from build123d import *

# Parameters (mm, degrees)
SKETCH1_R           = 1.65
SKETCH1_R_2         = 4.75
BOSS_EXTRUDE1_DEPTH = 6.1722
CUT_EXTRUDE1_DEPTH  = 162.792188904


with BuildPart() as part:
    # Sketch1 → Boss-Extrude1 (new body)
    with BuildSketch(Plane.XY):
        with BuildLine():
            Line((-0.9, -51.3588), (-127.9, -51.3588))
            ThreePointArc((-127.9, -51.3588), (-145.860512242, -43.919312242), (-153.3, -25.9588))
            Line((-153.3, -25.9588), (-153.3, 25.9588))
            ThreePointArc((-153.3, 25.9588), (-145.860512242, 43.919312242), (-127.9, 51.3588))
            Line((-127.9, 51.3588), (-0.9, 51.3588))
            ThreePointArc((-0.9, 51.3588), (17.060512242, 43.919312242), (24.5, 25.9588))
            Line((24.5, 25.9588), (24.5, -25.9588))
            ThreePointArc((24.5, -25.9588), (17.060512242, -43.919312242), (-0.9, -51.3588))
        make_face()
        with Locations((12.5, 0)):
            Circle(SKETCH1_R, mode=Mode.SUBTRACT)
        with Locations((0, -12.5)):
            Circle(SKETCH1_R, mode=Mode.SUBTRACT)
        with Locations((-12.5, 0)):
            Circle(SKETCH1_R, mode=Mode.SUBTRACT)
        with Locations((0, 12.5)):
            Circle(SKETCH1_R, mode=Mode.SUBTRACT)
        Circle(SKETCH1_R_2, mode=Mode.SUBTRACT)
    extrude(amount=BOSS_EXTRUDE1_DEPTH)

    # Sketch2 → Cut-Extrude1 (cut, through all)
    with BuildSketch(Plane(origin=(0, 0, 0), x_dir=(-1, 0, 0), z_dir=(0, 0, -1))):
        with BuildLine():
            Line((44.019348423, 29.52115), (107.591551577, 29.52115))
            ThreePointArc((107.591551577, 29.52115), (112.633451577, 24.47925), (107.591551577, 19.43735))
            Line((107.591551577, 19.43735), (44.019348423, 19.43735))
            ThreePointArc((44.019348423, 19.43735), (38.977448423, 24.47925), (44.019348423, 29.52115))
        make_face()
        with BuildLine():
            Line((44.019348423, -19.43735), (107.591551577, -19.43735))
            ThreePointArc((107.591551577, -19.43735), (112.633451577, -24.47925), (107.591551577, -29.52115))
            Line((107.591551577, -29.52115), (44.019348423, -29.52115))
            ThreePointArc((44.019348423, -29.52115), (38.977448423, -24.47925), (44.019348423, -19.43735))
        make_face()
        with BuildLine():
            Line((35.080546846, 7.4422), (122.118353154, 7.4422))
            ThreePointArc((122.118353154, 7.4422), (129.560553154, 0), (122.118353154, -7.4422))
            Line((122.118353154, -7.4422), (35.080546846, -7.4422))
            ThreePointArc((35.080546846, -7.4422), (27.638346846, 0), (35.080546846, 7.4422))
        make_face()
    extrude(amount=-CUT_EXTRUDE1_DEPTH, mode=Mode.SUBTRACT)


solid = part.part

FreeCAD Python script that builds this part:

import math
import FreeCAD as App
import Part
import Sketcher
from FreeCAD import Vector
Q = App.Units.Quantity

doc = App.newDocument("Part")
body = doc.addObject("PartDesign::Body", "Body")

sketch1 = body.newObject("Sketcher::SketchObject", "Sketch")
sketch1.AttachmentSupport = (doc.getObject("XY_Plane"), [""])
sketch1.MapMode = "FlatFace"
sketch1.addGeometry(Part.LineSegment(Vector(-127.9, -51.4, 0), Vector(-0.9, -51.4, 0)), False)
sketch1.addGeometry(Part.ArcOfCircle(Part.Circle(Vector(-0.9, -26, 0), Vector(0, 0, 1), 25.4), math.radians(-90), math.radians(0)), False)
sketch1.addGeometry(Part.LineSegment(Vector(24.5, -26, 0), Vector(24.5, 26, 0)), False)
sketch1.addGeometry(Part.ArcOfCircle(Part.Circle(Vector(-0.9, 26, 0), Vector(0, 0, 1), 25.4), math.radians(0), math.radians(90)), False)
sketch1.addGeometry(Part.LineSegment(Vector(-0.9, 51.4, 0), Vector(-127.9, 51.4, 0)), False)
sketch1.addGeometry(Part.ArcOfCircle(Part.Circle(Vector(-127.9, 26, 0), Vector(0, 0, 1), 25.4), math.radians(90), math.radians(180)), False)
sketch1.addGeometry(Part.LineSegment(Vector(-153.3, 26, 0), Vector(-153.3, -26, 0)), False)
sketch1.addGeometry(Part.ArcOfCircle(Part.Circle(Vector(-127.9, -26, 0), Vector(0, 0, 1), 25.4), math.radians(180), math.radians(270)), False)
sketch1.addGeometry(Part.Circle(Vector(0, -12.5, 0), Vector(0, 0, 1), 1.6), False)
sketch1.addGeometry(Part.Circle(Vector(12.5, 0, 0), Vector(0, 0, 1), 1.6), False)
sketch1.addGeometry(Part.Circle(Vector(0, 0, 0), Vector(0, 0, 1), 4.8), False)
sketch1.addGeometry(Part.Circle(Vector(-12.5, 0, 0), Vector(0, 0, 1), 1.6), False)
sketch1.addGeometry(Part.Circle(Vector(0, 12.5, 0), Vector(0, 0, 1), 1.6), False)
sketch1.addConstraint(Sketcher.Constraint("Tangent", 0, 2, 1, 1))
sketch1.addConstraint(Sketcher.Constraint("Tangent", 1, 2, 2, 1))
sketch1.addConstraint(Sketcher.Constraint("Tangent", 2, 2, 3, 1))
sketch1.addConstraint(Sketcher.Constraint("Tangent", 3, 2, 4, 1))
sketch1.addConstraint(Sketcher.Constraint("Tangent", 4, 2, 5, 1))
sketch1.addConstraint(Sketcher.Constraint("Tangent", 5, 2, 6, 1))
sketch1.addConstraint(Sketcher.Constraint("Tangent", 6, 2, 7, 1))
sketch1.addConstraint(Sketcher.Constraint("Tangent", 7, 2, 0, 1))
sketch1.addConstraint(Sketcher.Constraint("Horizontal", 0))
sketch1.addConstraint(Sketcher.Constraint("Vertical", 2))
sketch1.addConstraint(Sketcher.Constraint("Horizontal", 4))
sketch1.addConstraint(Sketcher.Constraint("Vertical", 6))
sketch1.addConstraint(Sketcher.Constraint("Coincident", 10, 3, -1, 1))
sketch1.addConstraint(Sketcher.Constraint("Equal", 1, 3))
sketch1.addConstraint(Sketcher.Constraint("Equal", 3, 5))
sketch1.addConstraint(Sketcher.Constraint("Equal", 5, 7))
sketch1.addConstraint(Sketcher.Constraint("Equal", 8, 9))
sketch1.addConstraint(Sketcher.Constraint("Equal", 9, 11))
sketch1.addConstraint(Sketcher.Constraint("Equal", 11, 12))
sketch1.addConstraint(Sketcher.Constraint("Symmetric", 9, 3, 11, 3, -1, 1))
sketch1.addConstraint(Sketcher.Constraint("Symmetric", 8, 3, 12, 3, -1, 1))
sketch1.addConstraint(Sketcher.Constraint("PointOnObject", 8, 3, -2))
sketch1.addConstraint(Sketcher.Constraint("PointOnObject", 9, 3, -1))
sketch1.addConstraint(Sketcher.Constraint("Radius", 1, Q("1 in")))
sketch1.addConstraint(Sketcher.Constraint("DistanceX", 0, 1, 0, 2, Q("5 in")))
sketch1.addConstraint(Sketcher.Constraint("Diameter", 8, 3.3))
sketch1.addConstraint(Sketcher.Constraint("Diameter", 10, 9.5))
sketch1.addConstraint(Sketcher.Constraint("DistanceY", 2, 1, 2, 2, Q("2.044 in")))
sketch1.addConstraint(Sketcher.Constraint("DistanceY", 1, 3, -1, 1, Q("1.022 in")))
sketch1.addConstraint(Sketcher.Constraint("DistanceX", 1, 3, -1, 1, 0.9))
sketch1.addConstraint(Sketcher.Constraint("DistanceY", 8, 3, -1, 1, 12.5))
sketch1.addConstraint(Sketcher.Constraint("DistanceX", -1, 1, 9, 3, 12.5))
pad1 = body.newObject("PartDesign::Pad", "Pad")
pad1.Profile = sketch1
pad1.Length = Q("0.243 in")

sketch2 = body.newObject("Sketcher::SketchObject", "Sketch001")
sketch2.AttachmentSupport = (doc.getObject("XY_Plane"), [""])
sketch2.MapMode = "FlatFace"
sketch2.addGeometry(Part.LineSegment(Vector(-108, 30, 0), Vector(-44, 30, 0)), False)
sketch2.addGeometry(Part.ArcOfCircle(Part.Circle(Vector(-44, 24, 0), Vector(0, 0, 1), 5), math.radians(-90), math.radians(90)), False)
sketch2.addGeometry(Part.LineSegment(Vector(-44, 19, 0), Vector(-108, 19, 0)), False)
sketch2.addGeometry(Part.ArcOfCircle(Part.Circle(Vector(-108, 24, 0), Vector(0, 0, 1), 5), math.radians(90), math.radians(270)), False)
sketch2.addGeometry(Part.LineSegment(Vector(-108, -19, 0), Vector(-44, -19, 0)), False)
sketch2.addGeometry(Part.ArcOfCircle(Part.Circle(Vector(-44, -24, 0), Vector(0, 0, 1), 5), math.radians(-90), math.radians(90)), False)
sketch2.addGeometry(Part.LineSegment(Vector(-44, -30, 0), Vector(-108, -30, 0)), False)
sketch2.addGeometry(Part.ArcOfCircle(Part.Circle(Vector(-108, -24, 0), Vector(0, 0, 1), 5), math.radians(90), math.radians(270)), False)
sketch2.addGeometry(Part.LineSegment(Vector(-122, 7, 0), Vector(-35, 7, 0)), False)
sketch2.addGeometry(Part.ArcOfCircle(Part.Circle(Vector(-35, 0, 0), Vector(0, 0, 1), 7), math.radians(-90), math.radians(90)), False)
sketch2.addGeometry(Part.LineSegment(Vector(-35, -7, 0), Vector(-122, -7, 0)), False)
sketch2.addGeometry(Part.ArcOfCircle(Part.Circle(Vector(-122, 0, 0), Vector(0, 0, 1), 7), math.radians(90), math.radians(270)), False)
sketch2.addConstraint(Sketcher.Constraint("Tangent", 0, 2, 1, 2))
sketch2.addConstraint(Sketcher.Constraint("Tangent", 1, 1, 2, 1))
sketch2.addConstraint(Sketcher.Constraint("Tangent", 2, 2, 3, 2))
sketch2.addConstraint(Sketcher.Constraint("Tangent", 3, 1, 0, 1))
sketch2.addConstraint(Sketcher.Constraint("Tangent", 4, 2, 5, 2))
sketch2.addConstraint(Sketcher.Constraint("Tangent", 5, 1, 6, 1))
sketch2.addConstraint(Sketcher.Constraint("Tangent", 6, 2, 7, 2))
sketch2.addConstraint(Sketcher.Constraint("Tangent", 7, 1, 4, 1))
sketch2.addConstraint(Sketcher.Constraint("Tangent", 8, 2, 9, 2))
sketch2.addConstraint(Sketcher.Constraint("Tangent", 9, 1, 10, 1))
sketch2.addConstraint(Sketcher.Constraint("Tangent", 10, 2, 11, 2))
sketch2.addConstraint(Sketcher.Constraint("Tangent", 11, 1, 8, 1))
sketch2.addConstraint(Sketcher.Constraint("Horizontal", 0))
sketch2.addConstraint(Sketcher.Constraint("Horizontal", 2))
sketch2.addConstraint(Sketcher.Constraint("Horizontal", 4))
sketch2.addConstraint(Sketcher.Constraint("Horizontal", 6))
sketch2.addConstraint(Sketcher.Constraint("Horizontal", 8))
sketch2.addConstraint(Sketcher.Constraint("Horizontal", 10))
sketch2.addConstraint(Sketcher.Constraint("Equal", 3, 5))
sketch2.addConstraint(Sketcher.Constraint("Symmetric", 1, 3, 5, 3, -1))
sketch2.addConstraint(Sketcher.Constraint("PointOnObject", 9, 3, -1))
sketch2.addConstraint(Sketcher.Constraint("Vertical", 3, 3, 7, 3))
sketch2.addConstraint(Sketcher.Constraint("Radius", 9, Q("0.293 in")))
sketch2.addConstraint(Sketcher.Constraint("Radius", 1, Q("0.1985 in")))
sketch2.addConstraint(Sketcher.Constraint("DistanceY", 5, 3, 0, 2, Q("2.126 in")))
sketch2.addConstraint(Sketcher.Constraint("DistanceX", 1, 3, 9, 3, 8.938802))
sketch2.addConstraint(Sketcher.Constraint("DistanceX", 11, 3, 3, 3, 14.526802))
sketch2.addConstraint(Sketcher.Constraint("DistanceX", 0, 1, 0, 2, 63.572203))
sketch2.addConstraint(Sketcher.Constraint("DistanceX", 1, 3, -1, 1, 44.019348))
pocket1 = body.newObject("PartDesign::Pocket", "Pocket")
pocket1.Profile = sketch2
pocket1.Type = "ThroughAll"
pocket1.Reversed = True

doc.recompute()
